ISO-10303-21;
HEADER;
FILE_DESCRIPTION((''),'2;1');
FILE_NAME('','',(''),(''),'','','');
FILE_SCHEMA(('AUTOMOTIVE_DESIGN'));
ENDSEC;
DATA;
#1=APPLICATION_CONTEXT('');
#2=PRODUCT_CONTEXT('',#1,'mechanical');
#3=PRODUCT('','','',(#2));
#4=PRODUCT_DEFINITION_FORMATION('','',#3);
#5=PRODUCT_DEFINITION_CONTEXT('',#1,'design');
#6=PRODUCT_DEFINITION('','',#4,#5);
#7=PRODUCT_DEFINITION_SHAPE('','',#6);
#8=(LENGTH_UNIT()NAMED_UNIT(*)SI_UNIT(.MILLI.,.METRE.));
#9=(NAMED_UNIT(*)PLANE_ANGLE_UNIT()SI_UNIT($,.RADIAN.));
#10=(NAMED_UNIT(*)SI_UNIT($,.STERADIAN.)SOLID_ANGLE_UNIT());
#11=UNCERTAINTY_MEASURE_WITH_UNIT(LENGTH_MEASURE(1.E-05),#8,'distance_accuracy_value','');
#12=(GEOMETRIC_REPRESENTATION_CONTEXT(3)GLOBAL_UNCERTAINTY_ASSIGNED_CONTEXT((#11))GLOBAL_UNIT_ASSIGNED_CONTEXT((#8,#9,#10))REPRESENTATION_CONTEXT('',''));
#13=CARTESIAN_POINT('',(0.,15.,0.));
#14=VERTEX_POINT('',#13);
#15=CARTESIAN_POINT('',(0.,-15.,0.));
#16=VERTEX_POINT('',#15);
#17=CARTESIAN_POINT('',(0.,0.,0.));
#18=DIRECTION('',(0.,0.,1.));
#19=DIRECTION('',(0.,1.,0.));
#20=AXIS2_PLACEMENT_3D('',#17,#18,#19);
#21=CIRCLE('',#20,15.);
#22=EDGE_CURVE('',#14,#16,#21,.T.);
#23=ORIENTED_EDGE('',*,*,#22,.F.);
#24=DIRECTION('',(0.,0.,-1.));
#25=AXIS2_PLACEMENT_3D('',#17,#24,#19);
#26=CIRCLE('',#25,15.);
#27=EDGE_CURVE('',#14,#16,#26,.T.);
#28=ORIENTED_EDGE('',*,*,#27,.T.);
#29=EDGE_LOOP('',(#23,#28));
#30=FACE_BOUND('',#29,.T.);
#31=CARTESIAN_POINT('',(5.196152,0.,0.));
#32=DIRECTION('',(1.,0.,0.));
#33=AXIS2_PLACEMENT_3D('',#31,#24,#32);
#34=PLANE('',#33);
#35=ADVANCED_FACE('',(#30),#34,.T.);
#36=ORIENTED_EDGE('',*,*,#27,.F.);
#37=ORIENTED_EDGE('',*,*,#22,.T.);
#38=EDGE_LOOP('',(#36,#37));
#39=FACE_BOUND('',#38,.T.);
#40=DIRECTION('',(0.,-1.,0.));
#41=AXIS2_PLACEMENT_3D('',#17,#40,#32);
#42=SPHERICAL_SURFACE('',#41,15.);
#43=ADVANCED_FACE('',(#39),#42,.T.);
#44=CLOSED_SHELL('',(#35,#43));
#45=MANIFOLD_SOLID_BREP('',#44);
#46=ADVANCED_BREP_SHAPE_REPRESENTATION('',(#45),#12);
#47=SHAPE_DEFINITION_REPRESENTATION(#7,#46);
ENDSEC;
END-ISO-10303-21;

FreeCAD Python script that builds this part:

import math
import FreeCAD as App
import Part
import Sketcher
from FreeCAD import Vector
Q = App.Units.Quantity

doc = App.newDocument("Part")
params = doc.addObject("Spreadsheet::Sheet", "Params")
for row, (alias, value) in enumerate([
    ("sketch1_radius", "15 mm"),
    ("revolution_angle", "180 deg"),
], start=1):
    params.set(f"A{row}", alias)
    params.set(f"B{row}", "=" + value)
    params.setAlias(f"B{row}", alias)

body = doc.addObject("PartDesign::Body", "Body")

# Sketch on XZ plane
sketch1 = doc.addObject("Sketcher::SketchObject", "Sketch")
body.addObject(sketch1)
sketch1.AttachmentSupport = (doc.XZ_Plane, [""])
sketch1.MapMode = "FlatFace"
sketch1.addGeometry([
    Part.ArcOfCircle(Part.Circle(Vector(0, 0, 0), Vector(0, 0, 1), 15), math.radians(-90), math.radians(90)),
    Part.LineSegment(Vector(0, 15, 0), Vector(0, -15, 0)),
], False)
sketch1.addConstraint([
    Sketcher.Constraint("Coincident", 0, 1, 1, 2),
    Sketcher.Constraint("Coincident", 1, 1, 0, 2),
    Sketcher.Constraint("Vertical", 1),
    Sketcher.Constraint("Coincident", 0, 3, -1, 1),
    Sketcher.Constraint("PointOnObject", 0, 1, -2),
    Sketcher.Constraint("Radius", 0, Q("15 mm")),
])
sketch1.setExpression("Constraints[5]", "Params.sketch1_radius")
revolution = doc.addObject("PartDesign::Revolution", "Revolution")
body.addObject(revolution)
revolution.Profile = sketch1
revolution.ReferenceAxis = (sketch1, ["V_Axis"])
revolution.setExpression("Angle", "Params.revolution_angle")
body2 = doc.addObject("PartDesign::Body", "Body001")
doc.recompute()

body.Placement = App.Placement(Vector(0, 0, 0), App.Rotation(Vector(1, 0, 0), 90))
boolean = doc.addObject("PartDesign::Boolean", "Boolean")
body2.addObject(boolean)
boolean.Type = "Fuse"
boolean.addObjects([body])

doc.recompute()
